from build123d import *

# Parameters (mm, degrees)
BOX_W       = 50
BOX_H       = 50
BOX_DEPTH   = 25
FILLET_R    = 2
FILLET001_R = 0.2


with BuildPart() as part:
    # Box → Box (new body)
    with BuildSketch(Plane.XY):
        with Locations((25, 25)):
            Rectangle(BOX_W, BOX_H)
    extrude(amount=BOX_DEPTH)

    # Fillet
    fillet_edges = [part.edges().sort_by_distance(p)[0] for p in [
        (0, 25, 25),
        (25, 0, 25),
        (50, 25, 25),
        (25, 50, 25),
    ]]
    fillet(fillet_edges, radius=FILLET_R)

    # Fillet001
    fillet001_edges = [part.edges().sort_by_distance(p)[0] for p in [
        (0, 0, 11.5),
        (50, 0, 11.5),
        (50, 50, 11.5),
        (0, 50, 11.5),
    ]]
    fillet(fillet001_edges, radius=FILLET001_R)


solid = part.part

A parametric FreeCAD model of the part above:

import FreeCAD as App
import Part
import Sketcher
from FreeCAD import Vector
Q = App.Units.Quantity


def edges_at(feature, points):
    """Names of the edges that pass closest to the given points."""
    edges = feature.Shape.Edges
    near = lambda p: min(range(len(edges)), key=lambda i: edges[i].distToShape(Part.Vertex(*p))[0])
    return sorted({f"Edge{near(p) + 1}" for p in points})

doc = App.newDocument("Part")
body = doc.addObject("PartDesign::Body", "Body")

# Sketch on XY plane
sketch1 = body.newObject("Sketcher::SketchObject", "Sketch")
sketch1.AttachmentSupport = (doc.getObject("XY_Plane"), [""])
sketch1.MapMode = "FlatFace"
sketch1.addGeometry([
    Part.LineSegment(Vector(0, 50, 0), Vector(0, 0, 0)),
    Part.LineSegment(Vector(0, 0, 0), Vector(50, 0, 0)),
    Part.LineSegment(Vector(50, 0, 0), Vector(50, 50, 0)),
    Part.LineSegment(Vector(50, 50, 0), Vector(0, 50, 0)),
], False)
sketch1.addConstraint([
    Sketcher.Constraint("Coincident", 0, 2, 1, 1),
    Sketcher.Constraint("Coincident", 1, 2, 2, 1),
    Sketcher.Constraint("Coincident", 2, 2, 3, 1),
    Sketcher.Constraint("Coincident", 3, 2, 0, 1),
    Sketcher.Constraint("Vertical", 0),
    Sketcher.Constraint("Horizontal", 1),
    Sketcher.Constraint("Vertical", 2),
    Sketcher.Constraint("Horizontal", 3),
    Sketcher.Constraint("Coincident", 0, 2, -1, 1),
    Sketcher.Constraint("Equal", 3, 0),
    Sketcher.Constraint("DistanceX", 1, 1, 1, 2, Q("50 mm")),
])
pad1 = body.newObject("PartDesign::Pad", "Pad")
pad1.Profile = sketch1
pad1.Length = 25
doc.recompute()

fillet = body.newObject("PartDesign::Fillet", "Fillet")
fillet.Base = (pad1, edges_at(pad1, [
    (0, 25, 25),
    (25, 0, 25),
    (50, 25, 25),
    (25, 50, 25),
]))
fillet.Radius = 2
doc.recompute()

fillet2 = body.newObject("PartDesign::Fillet", "Fillet001")
fillet2.Base = (fillet, edges_at(fillet, [
    (0, 0, 11.5),
    (50, 0, 11.5),
    (50, 50, 11.5),
    (0, 50, 11.5),
]))
fillet2.Radius = 0.2

doc.recompute()
